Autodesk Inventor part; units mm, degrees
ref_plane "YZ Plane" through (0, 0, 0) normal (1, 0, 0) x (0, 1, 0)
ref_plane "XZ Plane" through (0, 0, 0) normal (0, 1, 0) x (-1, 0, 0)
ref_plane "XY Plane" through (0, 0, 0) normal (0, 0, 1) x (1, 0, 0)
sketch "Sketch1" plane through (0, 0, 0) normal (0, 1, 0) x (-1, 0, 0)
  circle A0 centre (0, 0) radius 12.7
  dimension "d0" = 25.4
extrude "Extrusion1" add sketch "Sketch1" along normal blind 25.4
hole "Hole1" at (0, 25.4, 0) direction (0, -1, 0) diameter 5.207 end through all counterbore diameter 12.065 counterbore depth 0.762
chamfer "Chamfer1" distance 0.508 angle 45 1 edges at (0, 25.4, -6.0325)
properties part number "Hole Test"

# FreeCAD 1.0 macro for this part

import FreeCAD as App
import Part
import Sketcher
Q = App.Units.Quantity


def edges_at(feature, points):
    """Names of the edges that pass closest to the given points."""
    edges = feature.Shape.Edges
    near = lambda p: min(range(len(edges)), key=lambda i: edges[i].distToShape(Part.Vertex(*p))[0])
    return sorted({f"Edge{near(p) + 1}" for p in points})

doc = App.newDocument("Part")
body = doc.addObject("PartDesign::Body", "Body")

# Sketch on XZ plane
sketch1 = body.newObject("Sketcher::SketchObject", "Sketch")
sketch1.AttachmentSupport = (doc.getObject("XZ_Plane"), [""])
sketch1.MapMode = "FlatFace"
sketch1.addGeometry(Part.Circle(App.Vector(0, 0, 0), App.Vector(0, 0, 1), 12.7), False)
sketch1.addConstraint([
    Sketcher.Constraint("Coincident", 0, 3, -1, 1),
    Sketcher.Constraint("Diameter", 0, Q("1 in")),
])
pad1 = body.newObject("PartDesign::Pad", "Pad")
pad1.Profile = sketch1
pad1.Length = Q("1 in")
pad1.Reversed = True

# Sketch on XZ plane
sketch2 = body.newObject("Sketcher::SketchObject", "Sketch001")
sketch2.AttachmentSupport = (doc.getObject("XZ_Plane"), [""])
sketch2.MapMode = "FlatFace"
sketch2.AttachmentOffset = App.Placement(App.Vector(0, 0, -1 * 25.4), App.Rotation())
sketch2.addGeometry(Part.Circle(App.Vector(0, 0, 0), App.Vector(0, 0, 1), 2.6035), False)
sketch2.addConstraint([
    Sketcher.Constraint("Coincident", 0, 3, -1, 1),
    Sketcher.Constraint("Diameter", 0, Q("0.205 in")),
])
doc.recompute()
hole = body.newObject("PartDesign::Hole", "Hole")
hole.Profile = sketch2
hole.ThreadType = "None"
hole.Diameter = Q("0.205 in")
hole.DepthType = "ThroughAll"
hole.HoleCutType = "Counterbore"
hole.HoleCutDiameter = Q("0.475 in")
hole.HoleCutDepth = Q("0.03 in")
hole.Reversed = True
doc.recompute()

chamfer = body.newObject("PartDesign::Chamfer", "Chamfer")
chamfer.Base = (hole, edges_at(hole, [(0, 25.4, -6.032)]))
chamfer.Size = Q("0.02 in")

doc.recompute()
